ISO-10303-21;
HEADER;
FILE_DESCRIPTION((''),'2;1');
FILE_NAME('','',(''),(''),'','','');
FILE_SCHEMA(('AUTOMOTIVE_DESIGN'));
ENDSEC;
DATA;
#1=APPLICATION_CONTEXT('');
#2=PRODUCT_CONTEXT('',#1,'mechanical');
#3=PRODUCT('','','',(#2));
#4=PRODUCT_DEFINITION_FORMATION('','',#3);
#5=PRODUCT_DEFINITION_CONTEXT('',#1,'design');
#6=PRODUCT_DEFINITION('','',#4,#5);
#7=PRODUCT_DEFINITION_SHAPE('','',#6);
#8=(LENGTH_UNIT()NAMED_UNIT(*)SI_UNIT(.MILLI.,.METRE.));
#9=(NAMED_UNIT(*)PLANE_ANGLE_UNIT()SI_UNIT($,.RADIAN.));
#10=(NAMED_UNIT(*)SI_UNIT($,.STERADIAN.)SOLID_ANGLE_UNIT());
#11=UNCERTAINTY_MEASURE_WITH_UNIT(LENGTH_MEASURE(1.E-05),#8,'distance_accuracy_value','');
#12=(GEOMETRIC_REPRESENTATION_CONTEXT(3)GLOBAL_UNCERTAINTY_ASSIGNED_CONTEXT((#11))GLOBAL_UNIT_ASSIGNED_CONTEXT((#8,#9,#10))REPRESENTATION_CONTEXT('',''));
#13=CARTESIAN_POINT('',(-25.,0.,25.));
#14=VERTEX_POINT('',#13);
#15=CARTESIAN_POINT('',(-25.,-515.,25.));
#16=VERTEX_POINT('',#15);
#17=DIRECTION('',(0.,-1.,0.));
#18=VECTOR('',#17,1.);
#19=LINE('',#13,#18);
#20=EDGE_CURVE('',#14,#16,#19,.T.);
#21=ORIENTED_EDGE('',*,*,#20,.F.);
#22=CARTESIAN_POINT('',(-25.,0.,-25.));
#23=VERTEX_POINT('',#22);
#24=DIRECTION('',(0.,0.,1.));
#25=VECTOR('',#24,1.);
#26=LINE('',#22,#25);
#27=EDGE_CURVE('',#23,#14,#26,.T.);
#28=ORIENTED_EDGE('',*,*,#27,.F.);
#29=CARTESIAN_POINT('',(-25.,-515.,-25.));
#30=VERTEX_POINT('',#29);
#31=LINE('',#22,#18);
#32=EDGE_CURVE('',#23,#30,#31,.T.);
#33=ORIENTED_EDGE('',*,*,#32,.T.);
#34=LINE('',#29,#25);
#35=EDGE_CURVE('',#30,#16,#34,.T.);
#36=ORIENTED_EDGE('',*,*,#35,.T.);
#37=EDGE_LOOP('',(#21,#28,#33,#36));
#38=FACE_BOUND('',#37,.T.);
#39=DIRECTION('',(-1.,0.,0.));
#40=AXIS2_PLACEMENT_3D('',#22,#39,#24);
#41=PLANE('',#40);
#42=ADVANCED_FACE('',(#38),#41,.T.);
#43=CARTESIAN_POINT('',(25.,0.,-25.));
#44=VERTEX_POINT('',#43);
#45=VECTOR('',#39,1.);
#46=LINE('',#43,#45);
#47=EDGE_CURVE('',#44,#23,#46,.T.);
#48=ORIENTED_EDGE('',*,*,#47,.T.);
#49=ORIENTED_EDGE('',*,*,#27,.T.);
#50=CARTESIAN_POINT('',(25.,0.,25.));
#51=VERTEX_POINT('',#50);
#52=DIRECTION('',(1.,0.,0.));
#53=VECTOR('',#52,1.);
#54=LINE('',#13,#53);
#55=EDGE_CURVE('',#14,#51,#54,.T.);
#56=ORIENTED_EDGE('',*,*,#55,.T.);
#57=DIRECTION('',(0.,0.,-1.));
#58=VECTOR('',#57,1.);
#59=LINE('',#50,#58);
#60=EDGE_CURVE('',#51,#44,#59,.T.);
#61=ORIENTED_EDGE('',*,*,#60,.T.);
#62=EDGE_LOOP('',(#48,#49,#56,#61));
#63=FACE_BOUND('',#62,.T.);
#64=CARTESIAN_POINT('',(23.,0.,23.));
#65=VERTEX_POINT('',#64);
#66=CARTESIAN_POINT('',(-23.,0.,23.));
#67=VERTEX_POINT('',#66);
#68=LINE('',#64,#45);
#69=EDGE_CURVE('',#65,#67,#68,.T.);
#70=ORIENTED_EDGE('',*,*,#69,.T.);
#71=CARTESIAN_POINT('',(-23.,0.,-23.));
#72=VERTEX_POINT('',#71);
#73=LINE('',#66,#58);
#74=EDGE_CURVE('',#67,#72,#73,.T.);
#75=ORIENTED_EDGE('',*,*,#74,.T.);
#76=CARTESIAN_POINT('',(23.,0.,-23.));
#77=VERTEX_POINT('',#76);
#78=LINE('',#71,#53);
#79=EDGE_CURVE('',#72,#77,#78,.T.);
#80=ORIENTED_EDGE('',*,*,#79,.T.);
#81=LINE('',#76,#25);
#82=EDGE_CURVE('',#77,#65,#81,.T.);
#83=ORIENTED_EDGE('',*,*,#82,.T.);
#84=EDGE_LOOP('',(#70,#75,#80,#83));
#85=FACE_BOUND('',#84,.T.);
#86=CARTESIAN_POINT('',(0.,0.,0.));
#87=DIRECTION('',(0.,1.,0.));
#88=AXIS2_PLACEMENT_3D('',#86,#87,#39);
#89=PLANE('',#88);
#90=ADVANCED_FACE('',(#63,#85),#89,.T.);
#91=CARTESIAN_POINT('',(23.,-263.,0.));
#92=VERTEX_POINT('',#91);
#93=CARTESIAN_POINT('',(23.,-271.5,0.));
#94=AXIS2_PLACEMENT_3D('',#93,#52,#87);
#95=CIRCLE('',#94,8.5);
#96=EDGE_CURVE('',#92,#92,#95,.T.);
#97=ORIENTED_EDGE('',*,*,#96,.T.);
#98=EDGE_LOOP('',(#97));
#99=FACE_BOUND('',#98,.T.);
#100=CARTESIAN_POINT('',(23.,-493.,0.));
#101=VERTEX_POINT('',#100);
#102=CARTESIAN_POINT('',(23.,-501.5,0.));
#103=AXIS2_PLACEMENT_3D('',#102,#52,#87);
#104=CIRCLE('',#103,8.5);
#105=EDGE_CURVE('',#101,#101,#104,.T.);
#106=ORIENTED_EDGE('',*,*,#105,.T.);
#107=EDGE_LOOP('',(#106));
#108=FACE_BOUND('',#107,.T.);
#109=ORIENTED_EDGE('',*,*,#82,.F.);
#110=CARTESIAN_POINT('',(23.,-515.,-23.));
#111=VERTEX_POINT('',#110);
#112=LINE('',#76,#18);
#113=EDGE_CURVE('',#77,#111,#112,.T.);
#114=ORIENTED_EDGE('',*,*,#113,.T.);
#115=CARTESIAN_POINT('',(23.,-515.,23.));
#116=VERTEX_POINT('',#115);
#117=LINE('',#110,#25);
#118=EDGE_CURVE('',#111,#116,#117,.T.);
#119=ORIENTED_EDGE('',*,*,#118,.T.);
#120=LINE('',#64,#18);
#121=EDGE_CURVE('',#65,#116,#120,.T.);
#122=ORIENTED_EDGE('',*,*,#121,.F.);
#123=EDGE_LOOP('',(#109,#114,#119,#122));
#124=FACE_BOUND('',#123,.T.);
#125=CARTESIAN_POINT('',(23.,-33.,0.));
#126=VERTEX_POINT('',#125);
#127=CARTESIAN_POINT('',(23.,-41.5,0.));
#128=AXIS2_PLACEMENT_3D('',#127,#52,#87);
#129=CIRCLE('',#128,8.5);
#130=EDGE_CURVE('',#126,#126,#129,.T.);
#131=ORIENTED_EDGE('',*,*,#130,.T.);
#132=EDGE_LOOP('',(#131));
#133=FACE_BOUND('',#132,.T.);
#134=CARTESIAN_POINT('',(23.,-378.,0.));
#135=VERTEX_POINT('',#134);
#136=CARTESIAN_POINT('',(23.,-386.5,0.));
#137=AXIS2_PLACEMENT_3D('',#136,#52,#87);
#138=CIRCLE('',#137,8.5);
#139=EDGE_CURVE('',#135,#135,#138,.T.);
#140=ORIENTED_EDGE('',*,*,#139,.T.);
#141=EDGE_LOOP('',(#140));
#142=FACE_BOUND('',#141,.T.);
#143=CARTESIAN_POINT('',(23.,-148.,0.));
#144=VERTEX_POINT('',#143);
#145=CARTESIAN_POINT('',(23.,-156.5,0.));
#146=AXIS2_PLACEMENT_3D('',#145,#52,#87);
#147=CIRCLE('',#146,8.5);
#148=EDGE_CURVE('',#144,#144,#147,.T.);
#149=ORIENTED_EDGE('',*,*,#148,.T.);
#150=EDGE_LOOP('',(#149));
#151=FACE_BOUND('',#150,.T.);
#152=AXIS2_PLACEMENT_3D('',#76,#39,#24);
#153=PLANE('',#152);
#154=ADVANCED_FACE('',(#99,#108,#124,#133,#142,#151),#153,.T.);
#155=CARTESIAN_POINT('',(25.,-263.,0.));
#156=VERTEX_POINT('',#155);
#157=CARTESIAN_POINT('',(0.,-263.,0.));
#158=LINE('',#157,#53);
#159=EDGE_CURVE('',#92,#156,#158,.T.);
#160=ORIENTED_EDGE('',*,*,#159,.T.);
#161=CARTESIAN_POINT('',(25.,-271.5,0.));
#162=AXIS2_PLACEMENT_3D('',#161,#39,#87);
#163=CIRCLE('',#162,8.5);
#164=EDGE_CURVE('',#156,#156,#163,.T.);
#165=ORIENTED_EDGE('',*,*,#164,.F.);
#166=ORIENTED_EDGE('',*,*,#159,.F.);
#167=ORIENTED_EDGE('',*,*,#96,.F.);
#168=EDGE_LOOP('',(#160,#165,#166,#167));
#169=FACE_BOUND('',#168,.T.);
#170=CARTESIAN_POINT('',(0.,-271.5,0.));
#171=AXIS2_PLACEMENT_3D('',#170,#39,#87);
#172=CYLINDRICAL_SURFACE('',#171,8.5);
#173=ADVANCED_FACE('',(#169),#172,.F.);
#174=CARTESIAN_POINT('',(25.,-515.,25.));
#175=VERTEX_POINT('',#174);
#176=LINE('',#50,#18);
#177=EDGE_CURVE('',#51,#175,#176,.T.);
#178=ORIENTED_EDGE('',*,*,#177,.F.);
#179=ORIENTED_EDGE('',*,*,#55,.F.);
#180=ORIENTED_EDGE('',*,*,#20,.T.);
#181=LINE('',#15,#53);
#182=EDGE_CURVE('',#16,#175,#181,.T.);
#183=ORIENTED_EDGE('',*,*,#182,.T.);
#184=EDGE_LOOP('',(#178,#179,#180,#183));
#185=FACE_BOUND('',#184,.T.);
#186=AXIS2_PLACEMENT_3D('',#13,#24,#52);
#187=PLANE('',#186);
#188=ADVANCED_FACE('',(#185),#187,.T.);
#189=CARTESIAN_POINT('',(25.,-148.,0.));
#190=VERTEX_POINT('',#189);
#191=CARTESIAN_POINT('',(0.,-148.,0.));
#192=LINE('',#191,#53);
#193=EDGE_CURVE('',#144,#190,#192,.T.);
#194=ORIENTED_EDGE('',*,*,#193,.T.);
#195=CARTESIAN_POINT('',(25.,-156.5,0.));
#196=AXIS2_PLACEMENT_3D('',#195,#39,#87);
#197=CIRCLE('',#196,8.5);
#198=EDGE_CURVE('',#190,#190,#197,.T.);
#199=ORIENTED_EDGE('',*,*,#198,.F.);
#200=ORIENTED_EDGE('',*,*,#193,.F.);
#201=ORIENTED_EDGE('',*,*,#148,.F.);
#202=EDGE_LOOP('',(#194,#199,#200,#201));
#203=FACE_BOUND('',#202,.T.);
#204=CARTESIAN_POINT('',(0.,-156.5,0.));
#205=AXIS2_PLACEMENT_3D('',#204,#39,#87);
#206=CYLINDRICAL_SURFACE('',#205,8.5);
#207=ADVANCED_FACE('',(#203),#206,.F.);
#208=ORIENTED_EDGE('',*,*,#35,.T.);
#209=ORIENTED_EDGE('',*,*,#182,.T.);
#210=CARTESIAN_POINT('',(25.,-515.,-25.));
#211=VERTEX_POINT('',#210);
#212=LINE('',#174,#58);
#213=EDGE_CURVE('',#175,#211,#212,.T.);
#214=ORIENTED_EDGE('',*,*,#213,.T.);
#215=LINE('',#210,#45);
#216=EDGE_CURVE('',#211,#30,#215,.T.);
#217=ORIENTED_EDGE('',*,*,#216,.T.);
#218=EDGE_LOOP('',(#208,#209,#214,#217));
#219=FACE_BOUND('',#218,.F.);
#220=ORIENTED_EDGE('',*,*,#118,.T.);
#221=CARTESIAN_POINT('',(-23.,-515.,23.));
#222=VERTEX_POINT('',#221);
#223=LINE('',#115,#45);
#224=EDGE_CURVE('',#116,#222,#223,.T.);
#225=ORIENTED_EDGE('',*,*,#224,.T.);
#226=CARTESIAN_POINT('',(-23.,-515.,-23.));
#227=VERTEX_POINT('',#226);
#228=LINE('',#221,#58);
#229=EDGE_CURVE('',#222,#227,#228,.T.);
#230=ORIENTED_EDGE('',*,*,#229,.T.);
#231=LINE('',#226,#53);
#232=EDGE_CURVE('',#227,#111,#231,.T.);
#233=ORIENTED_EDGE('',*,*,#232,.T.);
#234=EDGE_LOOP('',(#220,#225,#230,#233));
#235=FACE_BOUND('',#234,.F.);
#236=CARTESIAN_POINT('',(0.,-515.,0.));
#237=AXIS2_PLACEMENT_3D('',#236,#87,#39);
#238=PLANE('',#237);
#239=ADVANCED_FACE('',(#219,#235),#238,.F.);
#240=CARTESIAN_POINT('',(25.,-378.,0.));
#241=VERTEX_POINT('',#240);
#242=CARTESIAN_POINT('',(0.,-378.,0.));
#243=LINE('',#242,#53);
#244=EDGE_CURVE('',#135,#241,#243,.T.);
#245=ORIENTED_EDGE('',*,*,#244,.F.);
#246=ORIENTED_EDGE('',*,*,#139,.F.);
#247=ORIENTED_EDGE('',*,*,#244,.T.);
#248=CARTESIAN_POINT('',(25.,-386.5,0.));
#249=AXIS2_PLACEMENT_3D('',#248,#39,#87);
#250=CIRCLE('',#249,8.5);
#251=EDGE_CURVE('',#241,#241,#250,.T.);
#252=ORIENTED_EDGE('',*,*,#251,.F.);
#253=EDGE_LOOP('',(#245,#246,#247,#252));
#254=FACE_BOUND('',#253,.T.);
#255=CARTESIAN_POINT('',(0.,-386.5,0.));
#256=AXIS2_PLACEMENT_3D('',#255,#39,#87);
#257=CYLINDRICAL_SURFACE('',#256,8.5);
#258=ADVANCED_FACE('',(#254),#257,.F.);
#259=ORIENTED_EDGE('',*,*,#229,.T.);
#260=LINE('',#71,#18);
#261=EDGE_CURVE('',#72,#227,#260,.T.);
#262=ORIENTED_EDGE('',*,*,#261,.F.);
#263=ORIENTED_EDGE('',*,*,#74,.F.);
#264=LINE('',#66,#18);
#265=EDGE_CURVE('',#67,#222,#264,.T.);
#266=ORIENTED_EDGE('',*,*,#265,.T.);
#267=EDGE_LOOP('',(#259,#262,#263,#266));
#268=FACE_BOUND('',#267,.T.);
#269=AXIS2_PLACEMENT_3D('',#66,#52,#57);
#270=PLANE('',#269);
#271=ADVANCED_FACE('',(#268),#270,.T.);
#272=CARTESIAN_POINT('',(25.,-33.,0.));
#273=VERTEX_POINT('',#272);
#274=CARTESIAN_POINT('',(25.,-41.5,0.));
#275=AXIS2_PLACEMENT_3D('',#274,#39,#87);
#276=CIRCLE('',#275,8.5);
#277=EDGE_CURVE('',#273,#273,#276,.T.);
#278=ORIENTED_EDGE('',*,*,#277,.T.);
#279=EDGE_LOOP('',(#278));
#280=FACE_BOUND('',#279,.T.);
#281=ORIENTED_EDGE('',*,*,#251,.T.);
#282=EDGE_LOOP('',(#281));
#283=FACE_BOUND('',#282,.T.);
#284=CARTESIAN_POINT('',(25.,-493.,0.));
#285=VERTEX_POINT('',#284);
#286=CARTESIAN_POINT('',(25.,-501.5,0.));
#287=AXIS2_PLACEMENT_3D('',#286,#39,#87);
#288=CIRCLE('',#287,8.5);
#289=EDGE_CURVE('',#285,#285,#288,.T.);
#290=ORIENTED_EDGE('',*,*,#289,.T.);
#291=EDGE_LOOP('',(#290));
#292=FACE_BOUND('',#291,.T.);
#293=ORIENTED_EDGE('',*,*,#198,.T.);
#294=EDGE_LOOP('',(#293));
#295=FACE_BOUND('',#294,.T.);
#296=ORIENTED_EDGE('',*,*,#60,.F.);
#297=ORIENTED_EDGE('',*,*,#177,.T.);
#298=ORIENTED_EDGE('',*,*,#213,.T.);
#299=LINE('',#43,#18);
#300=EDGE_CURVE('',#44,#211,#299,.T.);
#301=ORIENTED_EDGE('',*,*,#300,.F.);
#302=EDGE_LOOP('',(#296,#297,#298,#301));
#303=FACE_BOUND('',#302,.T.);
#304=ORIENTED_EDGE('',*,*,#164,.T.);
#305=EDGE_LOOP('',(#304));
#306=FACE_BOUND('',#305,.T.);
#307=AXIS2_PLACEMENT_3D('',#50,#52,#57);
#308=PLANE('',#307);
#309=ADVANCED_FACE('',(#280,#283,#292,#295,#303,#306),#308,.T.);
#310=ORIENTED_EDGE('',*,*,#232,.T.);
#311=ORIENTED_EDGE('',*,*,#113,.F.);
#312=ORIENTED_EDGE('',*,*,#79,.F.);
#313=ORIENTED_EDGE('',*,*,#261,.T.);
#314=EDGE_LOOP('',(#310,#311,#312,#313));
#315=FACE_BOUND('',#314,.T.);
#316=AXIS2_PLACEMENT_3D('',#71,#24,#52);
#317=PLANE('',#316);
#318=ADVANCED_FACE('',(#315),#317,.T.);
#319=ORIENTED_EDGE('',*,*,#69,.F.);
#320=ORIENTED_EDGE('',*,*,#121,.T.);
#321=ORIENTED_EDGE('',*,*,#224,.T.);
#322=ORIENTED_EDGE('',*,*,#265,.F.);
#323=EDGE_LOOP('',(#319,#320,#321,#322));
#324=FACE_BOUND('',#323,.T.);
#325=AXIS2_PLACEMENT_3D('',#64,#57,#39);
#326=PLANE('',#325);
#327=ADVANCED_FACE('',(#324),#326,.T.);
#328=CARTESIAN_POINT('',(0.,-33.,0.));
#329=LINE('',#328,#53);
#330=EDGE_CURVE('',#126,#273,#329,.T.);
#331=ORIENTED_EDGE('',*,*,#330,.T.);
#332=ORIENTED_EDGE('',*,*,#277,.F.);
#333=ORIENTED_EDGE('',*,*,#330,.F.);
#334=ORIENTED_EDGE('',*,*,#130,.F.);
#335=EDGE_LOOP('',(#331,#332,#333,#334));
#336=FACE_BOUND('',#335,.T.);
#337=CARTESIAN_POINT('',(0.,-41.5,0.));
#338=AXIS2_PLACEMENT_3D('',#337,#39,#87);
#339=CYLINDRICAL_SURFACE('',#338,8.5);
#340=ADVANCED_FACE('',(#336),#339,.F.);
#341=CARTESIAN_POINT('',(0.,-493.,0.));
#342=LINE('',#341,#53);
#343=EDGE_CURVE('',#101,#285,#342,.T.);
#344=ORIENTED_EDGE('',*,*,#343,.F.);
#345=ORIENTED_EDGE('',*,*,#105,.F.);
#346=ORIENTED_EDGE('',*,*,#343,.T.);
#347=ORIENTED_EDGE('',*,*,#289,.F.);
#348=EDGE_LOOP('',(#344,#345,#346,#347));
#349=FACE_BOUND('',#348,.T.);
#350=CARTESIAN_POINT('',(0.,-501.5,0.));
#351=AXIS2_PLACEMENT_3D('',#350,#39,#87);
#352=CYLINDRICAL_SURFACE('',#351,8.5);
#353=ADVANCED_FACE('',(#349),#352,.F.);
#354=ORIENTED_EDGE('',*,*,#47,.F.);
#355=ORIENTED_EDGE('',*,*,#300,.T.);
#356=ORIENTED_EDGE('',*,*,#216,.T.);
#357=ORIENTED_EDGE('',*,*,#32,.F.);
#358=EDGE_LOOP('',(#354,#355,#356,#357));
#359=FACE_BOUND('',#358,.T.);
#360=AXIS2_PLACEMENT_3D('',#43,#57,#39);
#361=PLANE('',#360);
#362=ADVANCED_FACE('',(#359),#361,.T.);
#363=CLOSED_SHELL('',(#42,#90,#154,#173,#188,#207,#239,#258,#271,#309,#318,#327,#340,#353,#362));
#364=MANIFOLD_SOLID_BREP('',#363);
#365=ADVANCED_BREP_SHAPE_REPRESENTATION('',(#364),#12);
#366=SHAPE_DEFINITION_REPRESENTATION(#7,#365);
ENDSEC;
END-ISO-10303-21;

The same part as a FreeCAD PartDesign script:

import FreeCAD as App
import Part
import Sketcher

V = App.Vector
Q = App.Units.Quantity


def add_polygon(sketch, points):
    """Adds a closed chain of lines whose ends are joined by coincident constraints."""
    first, n = sketch.GeometryCount, len(points)
    for a, b in zip(points, points[1:] + points[:1]):
        sketch.addGeometry(Part.LineSegment(App.Vector(*a, 0), App.Vector(*b, 0)), False)
    for i in range(n):
        sketch.addConstraint(Sketcher.Constraint("Coincident", first + i, 2, first + (i + 1) % n, 1))

doc = App.newDocument("Part")
body = doc.addObject("PartDesign::Body", "Body")

# Sketch on XZ plane
sketch1 = body.newObject("Sketcher::SketchObject", "Sketch")
sketch1.AttachmentSupport = (doc.getObject("XZ_Plane"), [""])
sketch1.MapMode = "FlatFace"
add_polygon(sketch1, [(-25, -25), (-25, 25), (25, 25), (25, -25)])  # lines 0-3
add_polygon(sketch1, [(23, -23), (23, 23), (-23, 23), (-23, -23)])  # lines 4-7
sketch1.addConstraint([
    Sketcher.Constraint("Vertical", 0),
    Sketcher.Constraint("Horizontal", 1),
    Sketcher.Constraint("Vertical", 2),
    Sketcher.Constraint("Horizontal", 3),
    Sketcher.Constraint("Vertical", 4),
    Sketcher.Constraint("Horizontal", 5),
    Sketcher.Constraint("Vertical", 6),
    Sketcher.Constraint("Horizontal", 7),
    Sketcher.Constraint("Symmetric", 0, 2, 2, 2, -1, 1),
    Sketcher.Constraint("Symmetric", 4, 2, 6, 2, -1, 1),
    Sketcher.Constraint("Equal", 3, 0),
    Sketcher.Constraint("Equal", 7, 4),
    Sketcher.Constraint("DistanceX", 1, 1, 1, 2, Q("50 mm")),
    Sketcher.Constraint("DistanceX", 4, 2, 1, 2, Q("2 mm")),
])
pad1 = body.newObject("PartDesign::Pad", "Pad")
pad1.Profile = sketch1
pad1.Length = 515

# Sketch on YZ plane
sketch2 = body.newObject("Sketcher::SketchObject", "Sketch001")
sketch2.AttachmentSupport = (doc.getObject("YZ_Plane"), [""])
sketch2.MapMode = "FlatFace"
sketch2.addGeometry(Part.Circle(V(-502, 0, 0), V(0, 0, 1), 8), False)
sketch2.addConstraint([
    Sketcher.Constraint("PointOnObject", 0, 3, -1),
    Sketcher.Constraint("Diameter", 0, Q("17 mm")),
    Sketcher.Constraint("DistanceX", 0, 3, -1, 1, Q("501.5 mm")),
])
pocket1 = body.newObject("PartDesign::Pocket", "Pocket")
pocket1.Profile = sketch2
pocket1.Type = "ThroughAll"
pocket1.Reversed = True
doc.recompute()

linearpattern = body.newObject("PartDesign::LinearPattern", "LinearPattern")
linearpattern.Originals = [pocket1]
linearpattern.Direction = (doc.getObject("Y_Axis"), [""])
linearpattern.Mode = "offset"
linearpattern.Offset = 115
linearpattern.Occurrences = 5
body.Tip = linearpattern

doc.recompute()
